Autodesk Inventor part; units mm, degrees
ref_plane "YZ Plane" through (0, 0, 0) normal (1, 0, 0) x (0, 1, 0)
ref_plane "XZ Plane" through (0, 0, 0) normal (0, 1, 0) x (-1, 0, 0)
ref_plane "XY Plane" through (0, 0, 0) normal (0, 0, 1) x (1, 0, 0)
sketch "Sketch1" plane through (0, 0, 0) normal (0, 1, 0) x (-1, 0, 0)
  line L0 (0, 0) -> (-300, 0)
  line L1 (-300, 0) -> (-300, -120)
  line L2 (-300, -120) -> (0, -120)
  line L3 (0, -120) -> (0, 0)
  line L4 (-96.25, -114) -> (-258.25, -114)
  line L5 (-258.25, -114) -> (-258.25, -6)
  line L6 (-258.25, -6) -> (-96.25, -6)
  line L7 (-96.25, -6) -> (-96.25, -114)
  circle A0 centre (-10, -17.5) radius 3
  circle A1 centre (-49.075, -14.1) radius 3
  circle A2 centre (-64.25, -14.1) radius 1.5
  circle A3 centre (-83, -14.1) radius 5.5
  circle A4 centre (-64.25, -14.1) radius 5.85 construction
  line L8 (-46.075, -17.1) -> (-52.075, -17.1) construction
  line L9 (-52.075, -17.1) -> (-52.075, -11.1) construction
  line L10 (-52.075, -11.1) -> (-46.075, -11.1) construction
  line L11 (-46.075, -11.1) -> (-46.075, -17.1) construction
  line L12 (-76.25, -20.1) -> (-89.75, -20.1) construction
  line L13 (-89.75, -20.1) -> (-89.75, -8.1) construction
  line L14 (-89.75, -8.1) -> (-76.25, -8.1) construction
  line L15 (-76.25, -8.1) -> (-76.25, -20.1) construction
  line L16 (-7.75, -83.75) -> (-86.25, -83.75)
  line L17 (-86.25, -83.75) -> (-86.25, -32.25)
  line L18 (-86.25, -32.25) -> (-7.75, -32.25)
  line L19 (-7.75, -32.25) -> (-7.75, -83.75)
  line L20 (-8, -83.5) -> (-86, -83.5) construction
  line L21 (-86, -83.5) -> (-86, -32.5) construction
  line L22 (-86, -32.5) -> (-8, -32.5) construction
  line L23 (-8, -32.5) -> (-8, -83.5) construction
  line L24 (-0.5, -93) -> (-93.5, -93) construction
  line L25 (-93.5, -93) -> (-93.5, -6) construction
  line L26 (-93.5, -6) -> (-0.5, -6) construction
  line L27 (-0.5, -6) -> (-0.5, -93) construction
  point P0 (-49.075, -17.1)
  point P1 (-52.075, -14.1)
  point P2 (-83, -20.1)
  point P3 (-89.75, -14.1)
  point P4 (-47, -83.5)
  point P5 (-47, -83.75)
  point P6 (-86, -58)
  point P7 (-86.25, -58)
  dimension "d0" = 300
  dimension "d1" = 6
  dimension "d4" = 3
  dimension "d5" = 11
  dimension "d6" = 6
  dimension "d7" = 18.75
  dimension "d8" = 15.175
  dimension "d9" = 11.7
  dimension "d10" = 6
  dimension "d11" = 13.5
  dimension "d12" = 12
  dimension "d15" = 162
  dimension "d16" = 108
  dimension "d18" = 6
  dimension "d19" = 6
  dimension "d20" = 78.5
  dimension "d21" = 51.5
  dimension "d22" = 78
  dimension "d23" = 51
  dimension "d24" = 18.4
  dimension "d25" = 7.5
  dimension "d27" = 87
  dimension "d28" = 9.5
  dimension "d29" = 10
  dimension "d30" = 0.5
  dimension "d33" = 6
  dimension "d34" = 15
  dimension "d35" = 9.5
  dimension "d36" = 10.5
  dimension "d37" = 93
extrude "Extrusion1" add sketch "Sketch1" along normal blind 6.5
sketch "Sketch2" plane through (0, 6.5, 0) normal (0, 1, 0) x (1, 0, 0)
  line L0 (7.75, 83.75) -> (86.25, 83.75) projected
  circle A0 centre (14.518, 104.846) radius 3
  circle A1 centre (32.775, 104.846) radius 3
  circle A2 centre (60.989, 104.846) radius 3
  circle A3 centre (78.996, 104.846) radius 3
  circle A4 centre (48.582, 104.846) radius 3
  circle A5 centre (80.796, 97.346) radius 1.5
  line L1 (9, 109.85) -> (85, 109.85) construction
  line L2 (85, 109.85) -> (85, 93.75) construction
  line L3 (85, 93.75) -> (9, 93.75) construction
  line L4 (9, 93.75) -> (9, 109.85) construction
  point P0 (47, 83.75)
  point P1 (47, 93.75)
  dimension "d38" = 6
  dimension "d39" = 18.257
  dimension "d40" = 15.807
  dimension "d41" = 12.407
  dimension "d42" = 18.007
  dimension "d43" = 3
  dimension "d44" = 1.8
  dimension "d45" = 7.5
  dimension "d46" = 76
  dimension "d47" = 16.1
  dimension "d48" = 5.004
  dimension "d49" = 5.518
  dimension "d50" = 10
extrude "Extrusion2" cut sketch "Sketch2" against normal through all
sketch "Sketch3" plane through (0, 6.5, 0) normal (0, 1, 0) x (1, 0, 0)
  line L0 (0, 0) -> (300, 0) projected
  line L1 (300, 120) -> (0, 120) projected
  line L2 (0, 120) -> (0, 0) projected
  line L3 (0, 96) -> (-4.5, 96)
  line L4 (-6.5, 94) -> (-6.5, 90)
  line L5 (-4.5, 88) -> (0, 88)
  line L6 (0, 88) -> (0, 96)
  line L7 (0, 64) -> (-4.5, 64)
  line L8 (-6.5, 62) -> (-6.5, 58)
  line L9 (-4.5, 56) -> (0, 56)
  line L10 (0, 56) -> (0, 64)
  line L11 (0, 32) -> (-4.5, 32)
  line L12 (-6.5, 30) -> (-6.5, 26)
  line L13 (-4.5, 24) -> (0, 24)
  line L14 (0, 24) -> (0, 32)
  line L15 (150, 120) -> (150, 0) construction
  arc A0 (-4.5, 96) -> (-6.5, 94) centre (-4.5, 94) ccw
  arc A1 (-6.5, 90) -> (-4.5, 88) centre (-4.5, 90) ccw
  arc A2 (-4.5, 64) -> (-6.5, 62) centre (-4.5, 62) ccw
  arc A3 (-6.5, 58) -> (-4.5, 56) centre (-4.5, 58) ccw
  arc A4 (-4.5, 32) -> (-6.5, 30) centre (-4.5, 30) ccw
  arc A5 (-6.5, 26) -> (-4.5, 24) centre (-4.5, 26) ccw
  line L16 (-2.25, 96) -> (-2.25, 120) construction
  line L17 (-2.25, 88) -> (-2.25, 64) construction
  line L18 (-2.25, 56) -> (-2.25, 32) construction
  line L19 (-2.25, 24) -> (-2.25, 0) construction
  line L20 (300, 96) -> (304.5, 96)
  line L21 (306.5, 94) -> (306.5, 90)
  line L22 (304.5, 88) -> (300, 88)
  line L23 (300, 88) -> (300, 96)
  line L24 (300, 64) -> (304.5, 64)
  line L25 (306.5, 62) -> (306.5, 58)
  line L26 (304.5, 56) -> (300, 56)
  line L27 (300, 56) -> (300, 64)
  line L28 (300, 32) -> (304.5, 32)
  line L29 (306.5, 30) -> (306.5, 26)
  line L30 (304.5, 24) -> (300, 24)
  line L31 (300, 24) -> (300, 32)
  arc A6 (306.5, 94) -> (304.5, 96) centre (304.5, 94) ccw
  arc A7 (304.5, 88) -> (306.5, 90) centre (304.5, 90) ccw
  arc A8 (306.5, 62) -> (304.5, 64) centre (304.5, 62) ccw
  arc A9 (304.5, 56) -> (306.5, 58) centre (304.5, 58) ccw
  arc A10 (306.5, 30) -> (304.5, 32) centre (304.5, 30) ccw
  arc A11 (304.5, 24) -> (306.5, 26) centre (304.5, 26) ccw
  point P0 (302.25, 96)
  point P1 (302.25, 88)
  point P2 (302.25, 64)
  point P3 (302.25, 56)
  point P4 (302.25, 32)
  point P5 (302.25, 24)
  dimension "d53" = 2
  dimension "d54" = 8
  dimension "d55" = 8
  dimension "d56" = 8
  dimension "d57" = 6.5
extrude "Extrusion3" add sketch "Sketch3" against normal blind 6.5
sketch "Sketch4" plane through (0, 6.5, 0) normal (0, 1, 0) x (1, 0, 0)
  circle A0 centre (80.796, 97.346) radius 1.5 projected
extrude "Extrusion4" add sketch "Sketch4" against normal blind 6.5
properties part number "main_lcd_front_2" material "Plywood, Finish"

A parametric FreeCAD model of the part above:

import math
import FreeCAD as App
import Part
import Sketcher
Q = App.Units.Quantity

doc = App.newDocument("Part")
body = doc.addObject("PartDesign::Body", "Body")

# Sketch on XZ plane
sketch1 = body.newObject("Sketcher::SketchObject", "Sketch")
sketch1.AttachmentSupport = (doc.getObject("XZ_Plane"), [""])
sketch1.MapMode = "FlatFace"
sketch1.addGeometry(Part.LineSegment(App.Vector(0, -120, 0), App.Vector(0, 0, 0)), False)
sketch1.addGeometry(Part.LineSegment(App.Vector(0, 0, 0), App.Vector(300, 0, 0)), False)
sketch1.addGeometry(Part.LineSegment(App.Vector(300, 0, 0), App.Vector(300, -120, 0)), False)
sketch1.addGeometry(Part.LineSegment(App.Vector(300, -120, 0), App.Vector(0, -120, 0)), False)
sketch1.addGeometry(Part.LineSegment(App.Vector(96.2, -6, 0), App.Vector(96.2, -114, 0)), False)
sketch1.addGeometry(Part.LineSegment(App.Vector(96.2, -114, 0), App.Vector(258.2, -114, 0)), False)
sketch1.addGeometry(Part.LineSegment(App.Vector(258.2, -114, 0), App.Vector(258.2, -6, 0)), False)
sketch1.addGeometry(Part.LineSegment(App.Vector(258.2, -6, 0), App.Vector(96.2, -6, 0)), False)
sketch1.addGeometry(Part.LineSegment(App.Vector(7.8, -32.2, 0), App.Vector(7.8, -83.8, 0)), False)
sketch1.addGeometry(Part.LineSegment(App.Vector(7.8, -83.8, 0), App.Vector(86.2, -83.8, 0)), False)
sketch1.addGeometry(Part.LineSegment(App.Vector(86.2, -83.8, 0), App.Vector(86.2, -32.2, 0)), False)
sketch1.addGeometry(Part.LineSegment(App.Vector(86.2, -32.2, 0), App.Vector(7.8, -32.2, 0)), False)
sketch1.addGeometry(Part.Circle(App.Vector(83, -14.1, 0), App.Vector(0, 0, 1), 5.5), False)
sketch1.addGeometry(Part.Circle(App.Vector(10, -17.5, 0), App.Vector(0, 0, 1), 3), False)
sketch1.addGeometry(Part.Circle(App.Vector(64.2, -14.1, 0), App.Vector(0, 0, 1), 1.5), False)
sketch1.addGeometry(Part.Circle(App.Vector(49.1, -14.1, 0), App.Vector(0, 0, 1), 3), False)
sketch1.addConstraint(Sketcher.Constraint("Coincident", 0, 2, 1, 1))
sketch1.addConstraint(Sketcher.Constraint("Coincident", 1, 2, 2, 1))
sketch1.addConstraint(Sketcher.Constraint("Coincident", 2, 2, 3, 1))
sketch1.addConstraint(Sketcher.Constraint("Coincident", 3, 2, 0, 1))
sketch1.addConstraint(Sketcher.Constraint("Coincident", 4, 2, 5, 1))
sketch1.addConstraint(Sketcher.Constraint("Coincident", 5, 2, 6, 1))
sketch1.addConstraint(Sketcher.Constraint("Coincident", 6, 2, 7, 1))
sketch1.addConstraint(Sketcher.Constraint("Coincident", 7, 2, 4, 1))
sketch1.addConstraint(Sketcher.Constraint("Coincident", 8, 2, 9, 1))
sketch1.addConstraint(Sketcher.Constraint("Coincident", 9, 2, 10, 1))
sketch1.addConstraint(Sketcher.Constraint("Coincident", 10, 2, 11, 1))
sketch1.addConstraint(Sketcher.Constraint("Coincident", 11, 2, 8, 1))
sketch1.addConstraint(Sketcher.Constraint("Vertical", 0))
sketch1.addConstraint(Sketcher.Constraint("Horizontal", 1))
sketch1.addConstraint(Sketcher.Constraint("Vertical", 2))
sketch1.addConstraint(Sketcher.Constraint("Horizontal", 3))
sketch1.addConstraint(Sketcher.Constraint("Vertical", 4))
sketch1.addConstraint(Sketcher.Constraint("Horizontal", 5))
sketch1.addConstraint(Sketcher.Constraint("Vertical", 6))
sketch1.addConstraint(Sketcher.Constraint("Horizontal", 7))
sketch1.addConstraint(Sketcher.Constraint("Vertical", 8))
sketch1.addConstraint(Sketcher.Constraint("Horizontal", 9))
sketch1.addConstraint(Sketcher.Constraint("Vertical", 10))
sketch1.addConstraint(Sketcher.Constraint("Horizontal", 11))
sketch1.addConstraint(Sketcher.Constraint("Coincident", 0, 2, -1, 1))
sketch1.addConstraint(Sketcher.Constraint("Equal", 13, 15))
sketch1.addConstraint(Sketcher.Constraint("Horizontal", 12, 3, 14, 3))
sketch1.addConstraint(Sketcher.Constraint("Horizontal", 14, 3, 15, 3))
sketch1.addConstraint(Sketcher.Constraint("Diameter", 12, Q("11 mm")))
sketch1.addConstraint(Sketcher.Constraint("Diameter", 13, Q("6 mm")))
sketch1.addConstraint(Sketcher.Constraint("Diameter", 14, Q("3 mm")))
sketch1.addConstraint(Sketcher.Constraint("DistanceX", 1, 1, 1, 2, Q("300 mm")))
sketch1.addConstraint(Sketcher.Constraint("DistanceX", 5, 1, 5, 2, Q("162 mm")))
sketch1.addConstraint(Sketcher.Constraint("DistanceY", 4, 2, 4, 1, Q("108 mm")))
sketch1.addConstraint(Sketcher.Constraint("DistanceX", 9, 1, 9, 2, Q("78.5 mm")))
sketch1.addConstraint(Sketcher.Constraint("DistanceY", 8, 2, 8, 1, Q("51.5 mm")))
sketch1.addConstraint(Sketcher.Constraint("DistanceX", -1, 1, 13, 3, Q("10 mm")))
sketch1.addConstraint(Sketcher.Constraint("DistanceY", 6, 2, -1, 1, Q("6 mm")))
sketch1.addConstraint(Sketcher.Constraint("DistanceY", 3, 2, 4, 2, Q("6 mm")))
sketch1.addConstraint(Sketcher.Constraint("DistanceX", 9, 2, 4, 2, Q("10 mm")))
sketch1.addConstraint(Sketcher.Constraint("DistanceX", 14, 3, 12, 3, Q("18.75 mm")))
sketch1.addConstraint(Sketcher.Constraint("DistanceX", -1, 1, 12, 3, Q("83 mm")))
sketch1.addConstraint(Sketcher.Constraint("DistanceX", 15, 3, 14, 3, Q("15.175 mm")))
sketch1.addConstraint(Sketcher.Constraint("DistanceX", 14, 3, 4, 2, Q("32 mm")))
sketch1.addConstraint(Sketcher.Constraint("DistanceY", 12, 3, -1, 1, Q("14.1 mm")))
sketch1.addConstraint(Sketcher.Constraint("DistanceY", 13, 3, -1, 1, Q("17.5 mm")))
sketch1.addConstraint(Sketcher.Constraint("DistanceY", 8, 2, -1, 1, Q("83.75 mm")))
pad1 = body.newObject("PartDesign::Pad", "Pad")
pad1.Profile = sketch1
pad1.Length = 6.5
pad1.Reversed = True

# Sketch on XZ plane
sketch2 = body.newObject("Sketcher::SketchObject", "Sketch001")
sketch2.AttachmentSupport = (doc.getObject("XZ_Plane"), [""])
sketch2.MapMode = "FlatFace"
sketch2.AttachmentOffset = App.Placement(App.Vector(0, 0, -6.5), App.Rotation())
sketch2.addGeometry(Part.Circle(App.Vector(14.5, -104.8, 0), App.Vector(0, 0, 1), 3), False)
sketch2.addGeometry(Part.Circle(App.Vector(32.8, -104.8, 0), App.Vector(0, 0, 1), 3), False)
sketch2.addGeometry(Part.Circle(App.Vector(61, -104.8, 0), App.Vector(0, 0, 1), 3), False)
sketch2.addGeometry(Part.Circle(App.Vector(79, -104.8, 0), App.Vector(0, 0, 1), 3), False)
sketch2.addGeometry(Part.Circle(App.Vector(48.6, -104.8, 0), App.Vector(0, 0, 1), 3), False)
sketch2.addGeometry(Part.Circle(App.Vector(80.8, -97.3, 0), App.Vector(0, 0, 1), 1.5), False)
sketch2.addConstraint(Sketcher.Constraint("Equal", 0, 1))
sketch2.addConstraint(Sketcher.Constraint("Equal", 1, 2))
sketch2.addConstraint(Sketcher.Constraint("Equal", 2, 3))
sketch2.addConstraint(Sketcher.Constraint("Equal", 3, 4))
sketch2.addConstraint(Sketcher.Constraint("Horizontal", 0, 3, 1, 3))
sketch2.addConstraint(Sketcher.Constraint("Horizontal", 1, 3, 2, 3))
sketch2.addConstraint(Sketcher.Constraint("Horizontal", 2, 3, 3, 3))
sketch2.addConstraint(Sketcher.Constraint("Horizontal", 3, 3, 4, 3))
sketch2.addConstraint(Sketcher.Constraint("Diameter", 0, Q("6 mm")))
sketch2.addConstraint(Sketcher.Constraint("Diameter", 5, Q("3 mm")))
sketch2.addConstraint(Sketcher.Constraint("DistanceX", 3, 3, 5, 3, Q("1.8 mm")))
sketch2.addConstraint(Sketcher.Constraint("DistanceY", 3, 3, 5, 3, Q("7.5 mm")))
sketch2.addConstraint(Sketcher.Constraint("DistanceX", 0, 3, 1, 3, Q("18.257 mm")))
sketch2.addConstraint(Sketcher.Constraint("DistanceX", 2, 3, 3, 3, Q("18.007 mm")))
sketch2.addConstraint(Sketcher.Constraint("DistanceX", 4, 3, 2, 3, Q("12.407 mm")))
sketch2.addConstraint(Sketcher.Constraint("DistanceX", 1, 3, 4, 3, Q("15.807 mm")))
sketch2.addConstraint(Sketcher.Constraint("DistanceX", -1, 1, 0, 3, Q("14.518 mm")))
sketch2.addConstraint(Sketcher.Constraint("DistanceY", 0, 3, -1, 1, Q("104.846 mm")))
pocket1 = body.newObject("PartDesign::Pocket", "Pocket")
pocket1.Profile = sketch2
pocket1.Type = "ThroughAll"
pocket1.Reversed = True

# Sketch on XZ plane
sketch3 = body.newObject("Sketcher::SketchObject", "Sketch002")
sketch3.AttachmentSupport = (doc.getObject("XZ_Plane"), [""])
sketch3.MapMode = "FlatFace"
sketch3.AttachmentOffset = App.Placement(App.Vector(0, 0, -6.5), App.Rotation())
sketch3.addGeometry(Part.LineSegment(App.Vector(0, -24, 0), App.Vector(0, -32, 0)), False)
sketch3.addGeometry(Part.LineSegment(App.Vector(0, -32, 0), App.Vector(-4.5, -32, 0)), False)
sketch3.addGeometry(Part.ArcOfCircle(Part.Circle(App.Vector(-4.5, -30, 0), App.Vector(0, 0, 1), 2), math.radians(180), math.radians(270)), False)
sketch3.addGeometry(Part.LineSegment(App.Vector(-6.5, -30, 0), App.Vector(-6.5, -26, 0)), False)
sketch3.addGeometry(Part.ArcOfCircle(Part.Circle(App.Vector(-4.5, -26, 0), App.Vector(0, 0, 1), 2), math.radians(90), math.radians(180)), False)
sketch3.addGeometry(Part.LineSegment(App.Vector(-4.5, -24, 0), App.Vector(0, -24, 0)), False)
sketch3.addGeometry(Part.LineSegment(App.Vector(0, -56, 0), App.Vector(0, -64, 0)), False)
sketch3.addGeometry(Part.LineSegment(App.Vector(0, -64, 0), App.Vector(-4.5, -64, 0)), False)
sketch3.addGeometry(Part.ArcOfCircle(Part.Circle(App.Vector(-4.5, -62, 0), App.Vector(0, 0, 1), 2), math.radians(180), math.radians(270)), False)
sketch3.addGeometry(Part.LineSegment(App.Vector(-6.5, -62, 0), App.Vector(-6.5, -58, 0)), False)
sketch3.addGeometry(Part.ArcOfCircle(Part.Circle(App.Vector(-4.5, -58, 0), App.Vector(0, 0, 1), 2), math.radians(90), math.radians(180)), False)
sketch3.addGeometry(Part.LineSegment(App.Vector(-4.5, -56, 0), App.Vector(0, -56, 0)), False)
sketch3.addGeometry(Part.LineSegment(App.Vector(0, -88, 0), App.Vector(0, -96, 0)), False)
sketch3.addGeometry(Part.LineSegment(App.Vector(0, -96, 0), App.Vector(-4.5, -96, 0)), False)
sketch3.addGeometry(Part.ArcOfCircle(Part.Circle(App.Vector(-4.5, -94, 0), App.Vector(0, 0, 1), 2), math.radians(180), math.radians(270)), False)
sketch3.addGeometry(Part.LineSegment(App.Vector(-6.5, -94, 0), App.Vector(-6.5, -90, 0)), False)
sketch3.addGeometry(Part.ArcOfCircle(Part.Circle(App.Vector(-4.5, -90, 0), App.Vector(0, 0, 1), 2), math.radians(90), math.radians(180)), False)
sketch3.addGeometry(Part.LineSegment(App.Vector(-4.5, -88, 0), App.Vector(0, -88, 0)), False)
sketch3.addGeometry(Part.LineSegment(App.Vector(304.5, -96, 0), App.Vector(300, -96, 0)), False)
sketch3.addGeometry(Part.LineSegment(App.Vector(300, -96, 0), App.Vector(300, -88, 0)), False)
sketch3.addGeometry(Part.LineSegment(App.Vector(300, -88, 0), App.Vector(304.5, -88, 0)), False)
sketch3.addGeometry(Part.ArcOfCircle(Part.Circle(App.Vector(304.5, -90, 0), App.Vector(0, 0, 1), 2), math.radians(0), math.radians(90)), False)
sketch3.addGeometry(Part.LineSegment(App.Vector(306.5, -90, 0), App.Vector(306.5, -94, 0)), False)
sketch3.addGeometry(Part.ArcOfCircle(Part.Circle(App.Vector(304.5, -94, 0), App.Vector(0, 0, 1), 2), math.radians(-90), math.radians(0)), False)
sketch3.addGeometry(Part.LineSegment(App.Vector(304.5, -64, 0), App.Vector(300, -64, 0)), False)
sketch3.addGeometry(Part.LineSegment(App.Vector(300, -64, 0), App.Vector(300, -56, 0)), False)
sketch3.addGeometry(Part.LineSegment(App.Vector(300, -56, 0), App.Vector(304.5, -56, 0)), False)
sketch3.addGeometry(Part.ArcOfCircle(Part.Circle(App.Vector(304.5, -58, 0), App.Vector(0, 0, 1), 2), math.radians(0), math.radians(90)), False)
sketch3.addGeometry(Part.LineSegment(App.Vector(306.5, -58, 0), App.Vector(306.5, -62, 0)), False)
sketch3.addGeometry(Part.ArcOfCircle(Part.Circle(App.Vector(304.5, -62, 0), App.Vector(0, 0, 1), 2), math.radians(-90), math.radians(0)), False)
sketch3.addGeometry(Part.LineSegment(App.Vector(304.5, -32, 0), App.Vector(300, -32, 0)), False)
sketch3.addGeometry(Part.LineSegment(App.Vector(300, -32, 0), App.Vector(300, -24, 0)), False)
sketch3.addGeometry(Part.LineSegment(App.Vector(300, -24, 0), App.Vector(304.5, -24, 0)), False)
sketch3.addGeometry(Part.ArcOfCircle(Part.Circle(App.Vector(304.5, -26, 0), App.Vector(0, 0, 1), 2), math.radians(0), math.radians(90)), False)
sketch3.addGeometry(Part.LineSegment(App.Vector(306.5, -26, 0), App.Vector(306.5, -30, 0)), False)
sketch3.addGeometry(Part.ArcOfCircle(Part.Circle(App.Vector(304.5, -30, 0), App.Vector(0, 0, 1), 2), math.radians(-90), math.radians(0)), False)
sketch3.addConstraint(Sketcher.Constraint("Coincident", 0, 2, 1, 1))
sketch3.addConstraint(Sketcher.Constraint("Tangent", 1, 2, 2, 2))
sketch3.addConstraint(Sketcher.Constraint("Tangent", 2, 1, 3, 1))
sketch3.addConstraint(Sketcher.Constraint("Tangent", 3, 2, 4, 2))
sketch3.addConstraint(Sketcher.Constraint("Tangent", 4, 1, 5, 1))
sketch3.addConstraint(Sketcher.Constraint("Coincident", 5, 2, 0, 1))
sketch3.addConstraint(Sketcher.Constraint("Coincident", 6, 2, 7, 1))
sketch3.addConstraint(Sketcher.Constraint("Tangent", 7, 2, 8, 2))
sketch3.addConstraint(Sketcher.Constraint("Tangent", 8, 1, 9, 1))
sketch3.addConstraint(Sketcher.Constraint("Tangent", 9, 2, 10, 2))
sketch3.addConstraint(Sketcher.Constraint("Tangent", 10, 1, 11, 1))
sketch3.addConstraint(Sketcher.Constraint("Coincident", 11, 2, 6, 1))
sketch3.addConstraint(Sketcher.Constraint("Coincident", 12, 2, 13, 1))
sketch3.addConstraint(Sketcher.Constraint("Tangent", 13, 2, 14, 2))
sketch3.addConstraint(Sketcher.Constraint("Tangent", 14, 1, 15, 1))
sketch3.addConstraint(Sketcher.Constraint("Tangent", 15, 2, 16, 2))
sketch3.addConstraint(Sketcher.Constraint("Tangent", 16, 1, 17, 1))
sketch3.addConstraint(Sketcher.Constraint("Coincident", 17, 2, 12, 1))
sketch3.addConstraint(Sketcher.Constraint("Coincident", 18, 2, 19, 1))
sketch3.addConstraint(Sketcher.Constraint("Coincident", 19, 2, 20, 1))
sketch3.addConstraint(Sketcher.Constraint("Tangent", 20, 2, 21, 2))
sketch3.addConstraint(Sketcher.Constraint("Tangent", 21, 1, 22, 1))
sketch3.addConstraint(Sketcher.Constraint("Tangent", 22, 2, 23, 2))
sketch3.addConstraint(Sketcher.Constraint("Tangent", 23, 1, 18, 1))
sketch3.addConstraint(Sketcher.Constraint("Coincident", 24, 2, 25, 1))
sketch3.addConstraint(Sketcher.Constraint("Coincident", 25, 2, 26, 1))
sketch3.addConstraint(Sketcher.Constraint("Tangent", 26, 2, 27, 2))
sketch3.addConstraint(Sketcher.Constraint("Tangent", 27, 1, 28, 1))
sketch3.addConstraint(Sketcher.Constraint("Tangent", 28, 2, 29, 2))
sketch3.addConstraint(Sketcher.Constraint("Tangent", 29, 1, 24, 1))
sketch3.addConstraint(Sketcher.Constraint("Coincident", 30, 2, 31, 1))
sketch3.addConstraint(Sketcher.Constraint("Coincident", 31, 2, 32, 1))
sketch3.addConstraint(Sketcher.Constraint("Tangent", 32, 2, 33, 2))
sketch3.addConstraint(Sketcher.Constraint("Tangent", 33, 1, 34, 1))
sketch3.addConstraint(Sketcher.Constraint("Tangent", 34, 2, 35, 2))
sketch3.addConstraint(Sketcher.Constraint("Tangent", 35, 1, 30, 1))
sketch3.addConstraint(Sketcher.Constraint("Vertical", 0))
sketch3.addConstraint(Sketcher.Constraint("Horizontal", 1))
sketch3.addConstraint(Sketcher.Constraint("Vertical", 3))
sketch3.addConstraint(Sketcher.Constraint("Horizontal", 5))
sketch3.addConstraint(Sketcher.Constraint("Vertical", 6))
sketch3.addConstraint(Sketcher.Constraint("Horizontal", 7))
sketch3.addConstraint(Sketcher.Constraint("Vertical", 9))
sketch3.addConstraint(Sketcher.Constraint("Horizontal", 11))
sketch3.addConstraint(Sketcher.Constraint("Vertical", 12))
sketch3.addConstraint(Sketcher.Constraint("Horizontal", 13))
sketch3.addConstraint(Sketcher.Constraint("Vertical", 15))
sketch3.addConstraint(Sketcher.Constraint("Horizontal", 17))
sketch3.addConstraint(Sketcher.Constraint("Horizontal", 18))
sketch3.addConstraint(Sketcher.Constraint("Vertical", 19))
sketch3.addConstraint(Sketcher.Constraint("Horizontal", 20))
sketch3.addConstraint(Sketcher.Constraint("Vertical", 22))
sketch3.addConstraint(Sketcher.Constraint("Horizontal", 24))
sketch3.addConstraint(Sketcher.Constraint("Vertical", 25))
sketch3.addConstraint(Sketcher.Constraint("Horizontal", 26))
sketch3.addConstraint(Sketcher.Constraint("Vertical", 28))
sketch3.addConstraint(Sketcher.Constraint("Horizontal", 30))
sketch3.addConstraint(Sketcher.Constraint("Vertical", 31))
sketch3.addConstraint(Sketcher.Constraint("Horizontal", 32))
sketch3.addConstraint(Sketcher.Constraint("Vertical", 34))
sketch3.addConstraint(Sketcher.Constraint("Equal", 2, 4))
sketch3.addConstraint(Sketcher.Constraint("Equal", 4, 8))
sketch3.addConstraint(Sketcher.Constraint("Equal", 8, 10))
sketch3.addConstraint(Sketcher.Constraint("Equal", 10, 14))
sketch3.addConstraint(Sketcher.Constraint("Equal", 14, 16))
sketch3.addConstraint(Sketcher.Constraint("Equal", 16, 21))
sketch3.addConstraint(Sketcher.Constraint("Equal", 21, 23))
sketch3.addConstraint(Sketcher.Constraint("Equal", 23, 27))
sketch3.addConstraint(Sketcher.Constraint("Equal", 27, 29))
sketch3.addConstraint(Sketcher.Constraint("Equal", 29, 33))
sketch3.addConstraint(Sketcher.Constraint("Equal", 33, 35))
sketch3.addConstraint(Sketcher.Constraint("PointOnObject", 0, 2, -2))
sketch3.addConstraint(Sketcher.Constraint("PointOnObject", 6, 2, -2))
sketch3.addConstraint(Sketcher.Constraint("PointOnObject", 12, 2, -2))
sketch3.addConstraint(Sketcher.Constraint("Horizontal", 16, 3, 21, 3))
sketch3.addConstraint(Sketcher.Constraint("Horizontal", 14, 3, 23, 3))
sketch3.addConstraint(Sketcher.Constraint("Horizontal", 10, 3, 27, 3))
sketch3.addConstraint(Sketcher.Constraint("Horizontal", 8, 3, 29, 3))
sketch3.addConstraint(Sketcher.Constraint("Horizontal", 4, 3, 33, 3))
sketch3.addConstraint(Sketcher.Constraint("Horizontal", 2, 3, 35, 3))
sketch3.addConstraint(Sketcher.Constraint("Vertical", 4, 3, 8, 3))
sketch3.addConstraint(Sketcher.Constraint("Vertical", 10, 3, 14, 3))
sketch3.addConstraint(Sketcher.Constraint("Vertical", 23, 3, 27, 3))
sketch3.addConstraint(Sketcher.Constraint("Vertical", 29, 3, 33, 3))
sketch3.addConstraint(Sketcher.Constraint("Vertical", 19, 2, 24, 2))
sketch3.addConstraint(Sketcher.Constraint("Vertical", 25, 2, 30, 2))
sketch3.addConstraint(Sketcher.Constraint("Equal", 17, 18))
sketch3.addConstraint(Sketcher.Constraint("Equal", 0, 6))
sketch3.addConstraint(Sketcher.Constraint("Equal", 6, 12))
sketch3.addConstraint(Sketcher.Constraint("Radius", 2, Q("2 mm")))
sketch3.addConstraint(Sketcher.Constraint("DistanceY", 0, 2, 0, 1, Q("8 mm")))
sketch3.addConstraint(Sketcher.Constraint("DistanceX", 2, 1, -1, 1, Q("6.5 mm")))
sketch3.addConstraint(Sketcher.Constraint("DistanceY", 2, 3, -1, 1, Q("30 mm")))
sketch3.addConstraint(Sketcher.Constraint("DistanceY", 8, 3, -1, 1, Q("62 mm")))
sketch3.addConstraint(Sketcher.Constraint("DistanceY", 14, 3, -1, 1, Q("94 mm")))
sketch3.addConstraint(Sketcher.Constraint("DistanceX", -1, 1, 18, 2, Q("300 mm")))
pad2 = body.newObject("PartDesign::Pad", "Pad001")
pad2.Profile = sketch3
pad2.Length = 6.5

# Sketch on XZ plane
sketch4 = body.newObject("Sketcher::SketchObject", "Sketch003")
sketch4.AttachmentSupport = (doc.getObject("XZ_Plane"), [""])
sketch4.MapMode = "FlatFace"
sketch4.AttachmentOffset = App.Placement(App.Vector(0, 0, -6.5), App.Rotation())
sketch4.addGeometry(Part.Circle(App.Vector(80.8, -97.3, 0), App.Vector(0, 0, 1), 1.5), False)
sketch4.addConstraint(Sketcher.Constraint("Diameter", 0, Q("3 mm")))
sketch4.addConstraint(Sketcher.Constraint("DistanceX", -1, 1, 0, 3, Q("80.796 mm")))
sketch4.addConstraint(Sketcher.Constraint("DistanceY", 0, 3, -1, 1, Q("97.346 mm")))
pad3 = body.newObject("PartDesign::Pad", "Pad002")
pad3.Profile = sketch4
pad3.Length = 6.5

doc.recompute()
